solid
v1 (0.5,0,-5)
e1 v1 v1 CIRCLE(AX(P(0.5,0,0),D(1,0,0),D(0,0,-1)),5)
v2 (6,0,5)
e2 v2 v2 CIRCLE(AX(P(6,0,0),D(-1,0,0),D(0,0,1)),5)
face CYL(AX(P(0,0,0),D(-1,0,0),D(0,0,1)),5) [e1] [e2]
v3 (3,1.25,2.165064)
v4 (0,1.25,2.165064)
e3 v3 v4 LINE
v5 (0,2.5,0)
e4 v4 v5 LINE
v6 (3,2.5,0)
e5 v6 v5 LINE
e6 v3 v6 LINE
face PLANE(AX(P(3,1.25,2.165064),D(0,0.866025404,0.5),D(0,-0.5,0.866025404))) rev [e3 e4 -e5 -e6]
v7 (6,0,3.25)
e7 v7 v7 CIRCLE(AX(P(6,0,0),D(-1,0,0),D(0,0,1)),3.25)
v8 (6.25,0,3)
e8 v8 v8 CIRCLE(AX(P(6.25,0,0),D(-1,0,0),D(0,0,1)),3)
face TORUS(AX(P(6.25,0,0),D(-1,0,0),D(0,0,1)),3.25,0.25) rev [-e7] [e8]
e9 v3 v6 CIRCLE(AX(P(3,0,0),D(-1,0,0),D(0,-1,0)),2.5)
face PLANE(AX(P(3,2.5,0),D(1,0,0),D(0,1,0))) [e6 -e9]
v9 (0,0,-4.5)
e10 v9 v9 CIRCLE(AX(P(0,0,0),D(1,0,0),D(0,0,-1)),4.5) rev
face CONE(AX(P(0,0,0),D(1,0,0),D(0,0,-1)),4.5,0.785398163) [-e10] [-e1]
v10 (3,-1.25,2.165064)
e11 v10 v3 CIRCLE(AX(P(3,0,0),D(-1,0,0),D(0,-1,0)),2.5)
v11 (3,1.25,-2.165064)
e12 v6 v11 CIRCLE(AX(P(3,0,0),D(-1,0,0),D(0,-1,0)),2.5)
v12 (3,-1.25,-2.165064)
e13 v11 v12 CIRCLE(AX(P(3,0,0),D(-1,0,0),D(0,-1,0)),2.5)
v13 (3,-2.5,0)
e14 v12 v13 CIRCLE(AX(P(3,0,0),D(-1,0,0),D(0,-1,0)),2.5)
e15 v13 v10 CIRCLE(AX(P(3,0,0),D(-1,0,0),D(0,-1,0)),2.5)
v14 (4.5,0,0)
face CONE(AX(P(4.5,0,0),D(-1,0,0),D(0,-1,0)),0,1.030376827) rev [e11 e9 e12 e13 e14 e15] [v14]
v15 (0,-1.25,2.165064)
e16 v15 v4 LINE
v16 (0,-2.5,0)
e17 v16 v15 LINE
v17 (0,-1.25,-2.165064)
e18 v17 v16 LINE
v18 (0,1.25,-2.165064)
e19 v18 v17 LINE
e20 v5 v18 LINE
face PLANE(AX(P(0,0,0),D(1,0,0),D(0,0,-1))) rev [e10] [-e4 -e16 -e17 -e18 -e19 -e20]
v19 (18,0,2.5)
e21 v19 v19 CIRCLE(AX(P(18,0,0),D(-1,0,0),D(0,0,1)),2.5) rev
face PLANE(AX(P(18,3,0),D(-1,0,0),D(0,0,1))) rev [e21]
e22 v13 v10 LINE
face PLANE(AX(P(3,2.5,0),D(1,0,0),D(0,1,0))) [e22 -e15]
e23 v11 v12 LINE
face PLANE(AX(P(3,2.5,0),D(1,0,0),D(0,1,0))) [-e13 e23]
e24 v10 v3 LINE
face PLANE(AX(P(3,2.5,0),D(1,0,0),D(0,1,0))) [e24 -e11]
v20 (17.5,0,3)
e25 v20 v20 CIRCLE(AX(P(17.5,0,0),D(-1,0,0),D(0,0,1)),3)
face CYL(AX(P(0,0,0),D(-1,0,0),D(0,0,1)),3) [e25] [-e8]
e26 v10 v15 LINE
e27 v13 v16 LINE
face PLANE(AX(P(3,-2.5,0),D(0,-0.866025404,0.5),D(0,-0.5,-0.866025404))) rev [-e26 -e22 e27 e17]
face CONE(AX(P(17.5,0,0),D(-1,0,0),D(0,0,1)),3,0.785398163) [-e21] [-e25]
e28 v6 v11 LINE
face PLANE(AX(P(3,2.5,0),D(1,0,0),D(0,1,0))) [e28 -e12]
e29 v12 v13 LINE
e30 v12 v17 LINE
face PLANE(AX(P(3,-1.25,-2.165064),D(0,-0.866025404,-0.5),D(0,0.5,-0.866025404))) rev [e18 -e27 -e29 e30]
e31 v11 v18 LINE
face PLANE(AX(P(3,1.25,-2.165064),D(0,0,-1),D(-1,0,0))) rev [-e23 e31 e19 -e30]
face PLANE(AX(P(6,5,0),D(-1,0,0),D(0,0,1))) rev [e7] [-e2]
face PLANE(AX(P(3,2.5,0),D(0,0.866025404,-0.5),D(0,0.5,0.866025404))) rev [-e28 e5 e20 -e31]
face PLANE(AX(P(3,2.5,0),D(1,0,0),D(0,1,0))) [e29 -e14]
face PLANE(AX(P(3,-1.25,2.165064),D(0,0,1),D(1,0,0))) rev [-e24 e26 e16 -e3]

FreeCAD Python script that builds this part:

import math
import FreeCAD as App
import Part
import Sketcher
from FreeCAD import Vector
Q = App.Units.Quantity


def edges_at(feature, points):
    """Names of the edges that pass closest to the given points."""
    edges = feature.Shape.Edges
    near = lambda p: min(range(len(edges)), key=lambda i: edges[i].distToShape(Part.Vertex(*p))[0])
    return sorted({f"Edge{near(p) + 1}" for p in points})


def add_polygon(sketch, points):
    """Adds a closed chain of lines whose ends are joined by coincident constraints."""
    first, n = sketch.GeometryCount, len(points)
    for a, b in zip(points, points[1:] + points[:1]):
        sketch.addGeometry(Part.LineSegment(App.Vector(*a, 0), App.Vector(*b, 0)), False)
    for i in range(n):
        sketch.addConstraint(Sketcher.Constraint("Coincident", first + i, 2, first + (i + 1) % n, 1))

doc = App.newDocument("Part")
body = doc.addObject("PartDesign::Body", "Body")

sketch1 = body.newObject("Sketcher::SketchObject", "Sketch")
sketch1.AttachmentSupport = (doc.getObject("XY_Plane"), [""])
sketch1.MapMode = "FlatFace"
sketch1.addGeometry(Part.LineSegment(Vector(0, 5, 0), Vector(0, 0, 0)), False)
sketch1.addGeometry(Part.LineSegment(Vector(0, 0, 0), Vector(18, 0, 0)), False)
sketch1.addGeometry(Part.LineSegment(Vector(18, 0, 0), Vector(18, 3, 0)), False)
sketch1.addGeometry(Part.LineSegment(Vector(18, 3, 0), Vector(6.25, 3, 0)), False)
sketch1.addGeometry(Part.ArcOfCircle(Part.Circle(Vector(6.25, 3.25, 0), Vector(0, 0, 1), 0.25), math.radians(-180), math.radians(-90)), False)
sketch1.addGeometry(Part.LineSegment(Vector(6, 3.25, 0), Vector(6, 5, 0)), False)
sketch1.addGeometry(Part.LineSegment(Vector(6, 5, 0), Vector(0, 5, 0)), False)
sketch1.addConstraint(Sketcher.Constraint("Coincident", 0, 2, 1, 1))
sketch1.addConstraint(Sketcher.Constraint("Coincident", 1, 2, 2, 1))
sketch1.addConstraint(Sketcher.Constraint("Coincident", 2, 2, 3, 1))
sketch1.addConstraint(Sketcher.Constraint("Tangent", 3, 2, 4, 2))
sketch1.addConstraint(Sketcher.Constraint("Tangent", 4, 1, 5, 1))
sketch1.addConstraint(Sketcher.Constraint("Coincident", 5, 2, 6, 1))
sketch1.addConstraint(Sketcher.Constraint("Coincident", 6, 2, 0, 1))
sketch1.addConstraint(Sketcher.Constraint("Vertical", 0))
sketch1.addConstraint(Sketcher.Constraint("Horizontal", 1))
sketch1.addConstraint(Sketcher.Constraint("Vertical", 2))
sketch1.addConstraint(Sketcher.Constraint("Horizontal", 3))
sketch1.addConstraint(Sketcher.Constraint("Vertical", 5))
sketch1.addConstraint(Sketcher.Constraint("Horizontal", 6))
sketch1.addConstraint(Sketcher.Constraint("Coincident", 0, 2, -1, 1))
sketch1.addConstraint(Sketcher.Constraint("DistanceX", 1, 1, 1, 2, Q("18 mm")))
sketch1.addConstraint(Sketcher.Constraint("DistanceX", 6, 2, 6, 1, Q("6 mm")))
sketch1.addConstraint(Sketcher.Constraint("DistanceY", 0, 2, 0, 1, Q("5 mm")))
sketch1.addConstraint(Sketcher.Constraint("DistanceY", 2, 1, 2, 2, Q("3 mm")))
sketch1.addConstraint(Sketcher.Constraint("Radius", 4, Q("0.25 mm")))
revolution = body.newObject("PartDesign::Revolution", "Revolution")
revolution.Profile = sketch1
revolution.ReferenceAxis = (sketch1, ["H_Axis"])
revolution.Angle = 360
doc.recompute()

chamfer = body.newObject("PartDesign::Chamfer", "Chamfer")
chamfer.Base = (revolution, edges_at(revolution, [(0, 0, -5), (18, 0, -3)]))
chamfer.Size = 0.5

sketch2 = body.newObject("Sketcher::SketchObject", "Sketch001")
sketch2.AttachmentSupport = (doc.getObject("YZ_Plane"), [""])
sketch2.MapMode = "FlatFace"
add_polygon(sketch2, [(-2.5, 0), (-1.25, 2.165064), (1.25, 2.165064), (2.5, 0), (1.25, -2.165064), (-1.25, -2.165064)])
sketch2.addConstraint(Sketcher.Constraint("Horizontal", 1))
sketch2.addConstraint(Sketcher.Constraint("Horizontal", 4))
sketch2.addConstraint(Sketcher.Constraint("Symmetric", 0, 2, 3, 2, -1, 1))
sketch2.addConstraint(Sketcher.Constraint("Symmetric", 2, 2, 5, 2, -1, 1))
sketch2.addConstraint(Sketcher.Constraint("PointOnObject", 2, 2, -1))
sketch2.addConstraint(Sketcher.Constraint("Parallel", 2, 5))
sketch2.addConstraint(Sketcher.Constraint("Vertical", 1, 2, 3, 2))
sketch2.addConstraint(Sketcher.Constraint("Angle", 0, Q("60 deg")))
sketch2.addConstraint(Sketcher.Constraint("DistanceX", 1, 1, 1, 2, Q("2.5 mm")))
sketch2.addConstraint(Sketcher.Constraint("DistanceX", 5, 2, 2, 2, Q("5 mm")))
pocket1 = body.newObject("PartDesign::Pocket", "Pocket")
pocket1.Profile = sketch2
pocket1.Length = 3
pocket1.Reversed = True

sketch3 = body.newObject("Sketcher::SketchObject", "Sketch002")
sketch3.AttachmentSupport = (doc.getObject("XY_Plane"), [""])
sketch3.MapMode = "FlatFace"
add_polygon(sketch3, [(3, 2.5), (3, 0), (4.5, 0)])
sketch3.addConstraint(Sketcher.Constraint("Vertical", 0))
sketch3.addConstraint(Sketcher.Constraint("Horizontal", 1))
sketch3.addConstraint(Sketcher.Constraint("PointOnObject", 0, 2, -1))
sketch3.addConstraint(Sketcher.Constraint("DistanceX", 1, 1, 1, 2, Q("1.5 mm")))
sketch3.addConstraint(Sketcher.Constraint("DistanceY", 0, 2, 0, 1, Q("2.5 mm")))
sketch3.addConstraint(Sketcher.Constraint("DistanceX", -1, 1, 0, 2, Q("3 mm")))
groove = body.newObject("PartDesign::Groove", "Groove")
groove.Profile = sketch3
groove.ReferenceAxis = (sketch3, ["H_Axis"])
groove.Angle = 360

doc.recompute()
